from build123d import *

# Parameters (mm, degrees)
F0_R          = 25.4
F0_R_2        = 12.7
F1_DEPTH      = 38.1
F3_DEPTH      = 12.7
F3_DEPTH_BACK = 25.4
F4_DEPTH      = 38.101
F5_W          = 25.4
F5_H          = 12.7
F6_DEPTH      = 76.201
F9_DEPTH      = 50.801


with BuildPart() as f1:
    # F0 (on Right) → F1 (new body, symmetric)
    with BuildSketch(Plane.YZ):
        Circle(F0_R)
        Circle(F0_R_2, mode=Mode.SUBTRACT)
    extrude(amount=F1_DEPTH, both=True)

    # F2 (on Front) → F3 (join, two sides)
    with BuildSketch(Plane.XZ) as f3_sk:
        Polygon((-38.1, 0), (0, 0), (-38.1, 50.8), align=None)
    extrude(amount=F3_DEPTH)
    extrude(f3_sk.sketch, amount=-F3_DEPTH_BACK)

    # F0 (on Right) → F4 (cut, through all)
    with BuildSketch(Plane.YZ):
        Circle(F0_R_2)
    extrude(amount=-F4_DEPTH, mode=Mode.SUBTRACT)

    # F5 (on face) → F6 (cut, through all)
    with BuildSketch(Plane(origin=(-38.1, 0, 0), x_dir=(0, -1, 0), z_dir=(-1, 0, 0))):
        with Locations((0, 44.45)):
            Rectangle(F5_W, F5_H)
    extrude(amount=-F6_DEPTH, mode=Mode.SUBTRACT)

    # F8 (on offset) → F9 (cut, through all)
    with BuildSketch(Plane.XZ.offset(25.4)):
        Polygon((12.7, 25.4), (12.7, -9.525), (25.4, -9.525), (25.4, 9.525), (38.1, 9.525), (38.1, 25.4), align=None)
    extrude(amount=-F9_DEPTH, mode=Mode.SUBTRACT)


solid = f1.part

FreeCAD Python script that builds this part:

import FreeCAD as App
import Part
import Sketcher

V = App.Vector
Q = App.Units.Quantity


def add_polygon(sketch, points):
    """Adds a closed chain of lines whose ends are joined by coincident constraints."""
    first, n = sketch.GeometryCount, len(points)
    for a, b in zip(points, points[1:] + points[:1]):
        sketch.addGeometry(Part.LineSegment(App.Vector(*a, 0), App.Vector(*b, 0)), False)
    for i in range(n):
        sketch.addConstraint(Sketcher.Constraint("Coincident", first + i, 2, first + (i + 1) % n, 1))

doc = App.newDocument("Part")
body = doc.addObject("PartDesign::Body", "Body")

# Sketch on YZ plane
sketch1 = doc.addObject("Sketcher::SketchObject", "Sketch")
body.addObject(sketch1)
sketch1.AttachmentSupport = (doc.YZ_Plane, [""])
sketch1.MapMode = "FlatFace"
sketch1.addGeometry(Part.Circle(V(0, 0, 0), V(0, 0, 1), 25), False)
sketch1.addGeometry(Part.Circle(V(0, 0, 0), V(0, 0, 1), 13), False)
sketch1.addConstraint(Sketcher.Constraint("Coincident", 0, 3, -1, 1))
sketch1.addConstraint(Sketcher.Constraint("Coincident", 1, 3, -1, 1))
sketch1.addConstraint(Sketcher.Constraint("Diameter", 0, Q("2 in")))
sketch1.addConstraint(Sketcher.Constraint("Diameter", 1, Q("1 in")))
pad1 = doc.addObject("PartDesign::Pad", "Pad")
body.addObject(pad1)
pad1.Profile = sketch1
pad1.Length = Q("3 in")
pad1.Midplane = True

# Sketch on XZ plane
sketch2 = doc.addObject("Sketcher::SketchObject", "Sketch001")
body.addObject(sketch2)
sketch2.AttachmentSupport = (doc.XZ_Plane, [""])
sketch2.MapMode = "FlatFace"
add_polygon(sketch2, [(-38, 0), (0, 0), (-38, 51)])  # lines 0-2
sketch2.addConstraint(Sketcher.Constraint("Horizontal", 0))
sketch2.addConstraint(Sketcher.Constraint("Vertical", 2))
sketch2.addConstraint(Sketcher.Constraint("Coincident", 0, 2, -1, 1))
sketch2.addConstraint(Sketcher.Constraint("DistanceY", 2, 2, 2, 1, Q("2 in")))
sketch2.addConstraint(Sketcher.Constraint("DistanceX", 0, 1, 0, 2, Q("1.5 in")))
pad2 = doc.addObject("PartDesign::Pad", "Pad001")
body.addObject(pad2)
pad2.Profile = sketch2
pad2.Type = "TwoLengths"
pad2.Length = Q("0.5 in")
pad2.Length2 = Q("1 in")

# Sketch on YZ plane
sketch3 = doc.addObject("Sketcher::SketchObject", "Sketch002")
body.addObject(sketch3)
sketch3.AttachmentSupport = (doc.YZ_Plane, [""])
sketch3.MapMode = "FlatFace"
sketch3.addGeometry(Part.Circle(V(0, 0, 0), V(0, 0, 1), 13), False)
sketch3.addConstraint(Sketcher.Constraint("Coincident", 0, 3, -1, 1))
sketch3.addConstraint(Sketcher.Constraint("Diameter", 0, Q("1 in")))
pocket1 = doc.addObject("PartDesign::Pocket", "Pocket")
body.addObject(pocket1)
pocket1.Profile = sketch3
pocket1.Type = "ThroughAll"

# Sketch on YZ plane
sketch4 = doc.addObject("Sketcher::SketchObject", "Sketch003")
body.addObject(sketch4)
sketch4.AttachmentSupport = (doc.YZ_Plane, [""])
sketch4.MapMode = "FlatFace"
sketch4.AttachmentOffset = App.Placement(V(0, 0, -1.5 * 25.4), App.Rotation())
add_polygon(sketch4, [(13, 51), (13, 38), (-13, 38), (-13, 51)])  # lines 0-3
sketch4.addConstraint(Sketcher.Constraint("Vertical", 0))
sketch4.addConstraint(Sketcher.Constraint("Horizontal", 1))
sketch4.addConstraint(Sketcher.Constraint("Vertical", 2))
sketch4.addConstraint(Sketcher.Constraint("Horizontal", 3))
sketch4.addConstraint(Sketcher.Constraint("DistanceX", 1, 2, 1, 1, Q("1 in")))
sketch4.addConstraint(Sketcher.Constraint("DistanceY", 0, 2, 0, 1, Q("0.5 in")))
sketch4.addConstraint(Sketcher.Constraint("DistanceY", -1, 1, 2, 2, Q("2 in")))
sketch4.addConstraint(Sketcher.Constraint("DistanceX", -1, 1, 0, 2, Q("0.5 in")))
pocket2 = doc.addObject("PartDesign::Pocket", "Pocket001")
body.addObject(pocket2)
pocket2.Profile = sketch4
pocket2.Type = "ThroughAll"
pocket2.Reversed = True

# Sketch on XZ plane
sketch5 = doc.addObject("Sketcher::SketchObject", "Sketch004")
body.addObject(sketch5)
sketch5.AttachmentSupport = (doc.XZ_Plane, [""])
sketch5.MapMode = "FlatFace"
sketch5.AttachmentOffset = App.Placement(V(0, 0, 1 * 25.4), App.Rotation())
add_polygon(sketch5, [(13, 25), (13, -10), (25, -10), (25, 10), (38, 10), (38, 25)])  # lines 0-5
sketch5.addConstraint(Sketcher.Constraint("Vertical", 0))
sketch5.addConstraint(Sketcher.Constraint("Horizontal", 1))
sketch5.addConstraint(Sketcher.Constraint("Vertical", 2))
sketch5.addConstraint(Sketcher.Constraint("Horizontal", 3))
sketch5.addConstraint(Sketcher.Constraint("Vertical", 4))
sketch5.addConstraint(Sketcher.Constraint("Horizontal", 5))
sketch5.addConstraint(Sketcher.Constraint("Equal", 1, 3))
sketch5.addConstraint(Sketcher.Constraint("DistanceX", 5, 2, 5, 1, Q("1 in")))
sketch5.addConstraint(Sketcher.Constraint("DistanceX", -1, 1, 1, 2, Q("1 in")))
sketch5.addConstraint(Sketcher.Constraint("DistanceY", -1, 1, 4, 2, Q("1 in")))
sketch5.addConstraint(Sketcher.Constraint("DistanceY", 2, 1, 2, 2, Q("0.75 in")))
sketch5.addConstraint(Sketcher.Constraint("DistanceY", 0, 2, 0, 1, Q("1.375 in")))
pocket3 = doc.addObject("PartDesign::Pocket", "Pocket002")
body.addObject(pocket3)
pocket3.Profile = sketch5
pocket3.Type = "ThroughAll"

doc.recompute()
